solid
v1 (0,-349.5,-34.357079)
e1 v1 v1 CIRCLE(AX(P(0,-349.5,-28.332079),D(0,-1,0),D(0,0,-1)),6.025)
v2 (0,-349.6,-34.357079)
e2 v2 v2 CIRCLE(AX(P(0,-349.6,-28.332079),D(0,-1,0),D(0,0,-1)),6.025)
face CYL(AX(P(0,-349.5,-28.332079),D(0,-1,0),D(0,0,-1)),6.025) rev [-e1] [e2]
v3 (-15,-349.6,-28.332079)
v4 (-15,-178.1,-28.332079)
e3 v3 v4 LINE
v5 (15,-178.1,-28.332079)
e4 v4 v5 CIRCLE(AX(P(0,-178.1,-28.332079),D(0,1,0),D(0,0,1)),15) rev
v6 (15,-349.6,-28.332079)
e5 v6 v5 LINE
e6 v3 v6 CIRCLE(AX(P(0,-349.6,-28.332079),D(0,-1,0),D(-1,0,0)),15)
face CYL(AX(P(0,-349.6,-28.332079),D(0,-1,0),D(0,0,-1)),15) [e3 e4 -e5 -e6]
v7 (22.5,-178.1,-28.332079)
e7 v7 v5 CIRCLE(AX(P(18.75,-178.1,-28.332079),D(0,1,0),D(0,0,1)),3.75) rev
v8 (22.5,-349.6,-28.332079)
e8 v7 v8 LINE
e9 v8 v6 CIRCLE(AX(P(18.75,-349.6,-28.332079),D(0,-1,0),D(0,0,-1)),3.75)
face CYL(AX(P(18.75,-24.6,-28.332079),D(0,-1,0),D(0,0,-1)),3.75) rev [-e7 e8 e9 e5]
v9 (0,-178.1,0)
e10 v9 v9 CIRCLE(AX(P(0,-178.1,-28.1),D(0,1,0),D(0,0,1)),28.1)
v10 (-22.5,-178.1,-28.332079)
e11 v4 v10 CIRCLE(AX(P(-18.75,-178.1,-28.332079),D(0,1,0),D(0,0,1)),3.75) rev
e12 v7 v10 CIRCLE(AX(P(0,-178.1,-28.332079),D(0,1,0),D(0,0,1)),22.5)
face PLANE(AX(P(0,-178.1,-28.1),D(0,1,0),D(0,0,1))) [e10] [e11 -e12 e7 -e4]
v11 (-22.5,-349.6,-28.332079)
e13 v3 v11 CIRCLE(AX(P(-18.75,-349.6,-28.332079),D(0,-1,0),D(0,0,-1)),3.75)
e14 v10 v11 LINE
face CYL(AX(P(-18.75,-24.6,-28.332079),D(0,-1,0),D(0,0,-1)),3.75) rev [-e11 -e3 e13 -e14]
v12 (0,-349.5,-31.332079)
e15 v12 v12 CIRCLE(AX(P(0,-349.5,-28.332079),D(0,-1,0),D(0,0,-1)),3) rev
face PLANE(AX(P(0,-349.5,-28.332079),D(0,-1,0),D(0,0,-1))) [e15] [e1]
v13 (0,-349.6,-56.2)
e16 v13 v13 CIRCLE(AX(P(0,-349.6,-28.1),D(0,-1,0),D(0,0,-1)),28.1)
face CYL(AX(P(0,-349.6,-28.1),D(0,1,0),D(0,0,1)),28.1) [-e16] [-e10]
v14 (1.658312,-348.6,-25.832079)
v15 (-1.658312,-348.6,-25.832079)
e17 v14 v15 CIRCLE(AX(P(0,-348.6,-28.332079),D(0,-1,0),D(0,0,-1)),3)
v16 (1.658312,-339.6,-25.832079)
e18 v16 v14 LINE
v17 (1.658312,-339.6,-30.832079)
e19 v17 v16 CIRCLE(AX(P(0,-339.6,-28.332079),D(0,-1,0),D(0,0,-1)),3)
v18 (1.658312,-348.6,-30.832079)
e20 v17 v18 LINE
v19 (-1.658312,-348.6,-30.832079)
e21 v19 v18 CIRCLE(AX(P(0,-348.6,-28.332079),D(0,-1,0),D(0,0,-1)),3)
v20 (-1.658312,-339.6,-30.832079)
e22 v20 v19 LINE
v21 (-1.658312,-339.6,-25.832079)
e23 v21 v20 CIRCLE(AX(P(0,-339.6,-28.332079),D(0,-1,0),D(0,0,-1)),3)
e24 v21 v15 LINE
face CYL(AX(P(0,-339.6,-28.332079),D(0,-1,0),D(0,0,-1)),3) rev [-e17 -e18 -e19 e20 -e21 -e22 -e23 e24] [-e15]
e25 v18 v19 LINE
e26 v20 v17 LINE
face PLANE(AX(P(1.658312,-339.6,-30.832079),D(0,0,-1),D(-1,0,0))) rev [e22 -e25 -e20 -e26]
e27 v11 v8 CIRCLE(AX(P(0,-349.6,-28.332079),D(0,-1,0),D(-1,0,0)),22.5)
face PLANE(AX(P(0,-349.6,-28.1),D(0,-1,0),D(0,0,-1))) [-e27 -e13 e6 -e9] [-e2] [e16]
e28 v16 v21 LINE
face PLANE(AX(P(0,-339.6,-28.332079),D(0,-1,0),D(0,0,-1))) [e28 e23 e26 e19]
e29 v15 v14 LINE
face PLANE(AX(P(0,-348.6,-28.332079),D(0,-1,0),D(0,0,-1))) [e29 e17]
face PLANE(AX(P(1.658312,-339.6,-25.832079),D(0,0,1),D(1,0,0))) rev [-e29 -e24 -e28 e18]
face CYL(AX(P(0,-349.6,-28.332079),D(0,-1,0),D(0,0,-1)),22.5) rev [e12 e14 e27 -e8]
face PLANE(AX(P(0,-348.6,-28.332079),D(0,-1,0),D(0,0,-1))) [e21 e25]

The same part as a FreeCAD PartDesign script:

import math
import FreeCAD as App
import Part
import Sketcher
from FreeCAD import Vector
Q = App.Units.Quantity


def add_polygon(sketch, points):
    """Adds a closed chain of lines whose ends are joined by coincident constraints."""
    first, n = sketch.GeometryCount, len(points)
    for a, b in zip(points, points[1:] + points[:1]):
        sketch.addGeometry(Part.LineSegment(App.Vector(*a, 0), App.Vector(*b, 0)), False)
    for i in range(n):
        sketch.addConstraint(Sketcher.Constraint("Coincident", first + i, 2, first + (i + 1) % n, 1))

doc = App.newDocument("Part")
params = doc.addObject("Spreadsheet::Sheet", "Params")
for row, (alias, value) in enumerate([
    ("sketch1_diameter", "56.2 mm"),
    ("pad1_length", "61.3 mm"),
    ("sketch2_diameter", "37.2 mm"),
    ("pocket1_length", "58.8 mm"),
    ("sketch3_width", "56.2 mm"),
    ("pad2_length", "56.2 mm"),
    ("sketch4_diameter", "32.2 mm"),
    ("pocket2_length", "5 mm"),
    ("pocket3_length", "53.7 mm"),
    ("sketch6_diameter", "56.2 mm"),
    ("pad3_length", "321.5 mm"),
    ("sketch7_radius", "3 mm"),
    ("pocket4_length", "10 mm"),
    ("sketch8_diameter", "6 mm"),
    ("pocket5_length", "1 mm"),
    ("sketch9_diameter", "12.05 mm"),
    ("pocket6_length", "0.1 mm"),
    ("sketch10_width", "7.5 mm"),
    ("sketch10_height", "329.6 mm"),
    ("sketch11_radius", "15 mm"),
    ("sketch12_diameter", "7.5 mm"),
    ("pocket7_length", "100 mm"),
    ("sketch13_diameter", "7.5 mm"),
    ("pocket8_length", "325 mm"),
    ("sketch14_width", "56.2 mm"),
    ("pocket9_length", "200 mm"),
    ("sketch15_diameter", "56.2 mm"),
    ("pocket10_length", "150 mm"),
], start=1):
    params.set(f"A{row}", alias)
    params.set(f"B{row}", "=" + value)
    params.setAlias(f"B{row}", alias)

body = doc.addObject("PartDesign::Body", "Body")

# Sketch on XY plane
sketch1 = body.newObject("Sketcher::SketchObject", "Sketch")
sketch1.AttachmentSupport = (doc.getObject("XY_Plane"), [""])
sketch1.MapMode = "FlatFace"
sketch1.addGeometry(Part.Circle(Vector(0, 0, 0), Vector(0, 0, 1), 28), False)
sketch1.addConstraint([
    Sketcher.Constraint("Coincident", 0, 3, -1, 1),
    Sketcher.Constraint("Diameter", 0, Q("56.2 mm")),
])
sketch1.setExpression("Constraints[1]", "Params.sketch1_diameter")
pad1 = body.newObject("PartDesign::Pad", "Pad")
pad1.Profile = sketch1
pad1.setExpression("Length", "Params.pad1_length")

# Sketch on XY plane
sketch2 = body.newObject("Sketcher::SketchObject", "Sketch001")
sketch2.AttachmentSupport = (doc.getObject("XY_Plane"), [""])
sketch2.MapMode = "FlatFace"
sketch2.AttachmentOffset = App.Placement(Vector(0, 0, 61.3), App.Rotation())
sketch2.addGeometry(Part.Circle(Vector(0, -7, 0), Vector(0, 0, 1), 19), False)
sketch2.addConstraint([
    Sketcher.Constraint("PointOnObject", 0, 3, -2),
    Sketcher.Constraint("Diameter", 0, Q("37.2 mm")),
    Sketcher.Constraint("DistanceY", 0, 3, -1, 1, Q("7 mm")),
])
sketch2.setExpression("Constraints[1]", "Params.sketch2_diameter")
pocket1 = body.newObject("PartDesign::Pocket", "Pocket")
pocket1.Profile = sketch2
pocket1.setExpression("Length", "Params.pocket1_length")

# Sketch on XY plane
sketch3 = body.newObject("Sketcher::SketchObject", "Sketch002")
sketch3.AttachmentSupport = (doc.getObject("XY_Plane"), [""])
sketch3.MapMode = "FlatFace"
add_polygon(sketch3, [(28, 28), (28, -28), (-28, -28), (-28, 28)])  # lines 0-3
sketch3.addConstraint([
    Sketcher.Constraint("Vertical", 0),
    Sketcher.Constraint("Horizontal", 1),
    Sketcher.Constraint("Vertical", 2),
    Sketcher.Constraint("Horizontal", 3),
    Sketcher.Constraint("Symmetric", 0, 2, 2, 2, -1, 1),
    Sketcher.Constraint("Equal", 3, 0),
    Sketcher.Constraint("DistanceX", 1, 2, 1, 1, Q("56.2 mm")),
])
sketch3.setExpression("Constraints[10]", "Params.sketch3_width")
pad2 = body.newObject("PartDesign::Pad", "Pad001")
pad2.Profile = sketch3
pad2.setExpression("Length", "Params.pad2_length")
pad2.Reversed = True

# Sketch on XY plane
sketch4 = body.newObject("Sketcher::SketchObject", "Sketch003")
sketch4.AttachmentSupport = (doc.getObject("XY_Plane"), [""])
sketch4.MapMode = "FlatFace"
sketch4.AttachmentOffset = App.Placement(Vector(0, 0, 2.5), App.Rotation())
sketch4.addGeometry(Part.Circle(Vector(0, -7, 0), Vector(0, 0, 1), 16), False)
sketch4.addConstraint([
    Sketcher.Constraint("PointOnObject", 0, 3, -2),
    Sketcher.Constraint("Diameter", 0, Q("32.2 mm")),
    Sketcher.Constraint("DistanceY", 0, 3, -1, 1, Q("7 mm")),
])
sketch4.setExpression("Constraints[1]", "Params.sketch4_diameter")
pocket2 = body.newObject("PartDesign::Pocket", "Pocket001")
pocket2.Profile = sketch4
pocket2.setExpression("Length", "Params.pocket2_length")

# Sketch on XY plane
sketch5 = body.newObject("Sketcher::SketchObject", "Sketch004")
sketch5.AttachmentSupport = (doc.getObject("XY_Plane"), [""])
sketch5.MapMode = "FlatFace"
sketch5.AttachmentOffset = App.Placement(Vector(0, 0, -56.2), App.Rotation())
add_polygon(sketch5, [(25, 25), (25, -25), (-25, -25), (-25, 25)])  # lines 0-3
sketch5.addConstraint([
    Sketcher.Constraint("Vertical", 0),
    Sketcher.Constraint("Horizontal", 1),
    Sketcher.Constraint("Vertical", 2),
    Sketcher.Constraint("Horizontal", 3),
    Sketcher.Constraint("Symmetric", 0, 2, 2, 2, -1, 1),
    Sketcher.Constraint("DistanceX", 1, 2, 1, 1, Q("49.797391 mm")),
    Sketcher.Constraint("DistanceY", 0, 2, 0, 1, Q("49.779255 mm")),
])
pocket3 = body.newObject("PartDesign::Pocket", "Pocket002")
pocket3.Profile = sketch5
pocket3.setExpression("Length", "Params.pocket3_length")
pocket3.Reversed = True

# Sketch on XZ plane
sketch6 = body.newObject("Sketcher::SketchObject", "Sketch005")
sketch6.AttachmentSupport = (doc.getObject("XZ_Plane"), [""])
sketch6.MapMode = "FlatFace"
sketch6.AttachmentOffset = App.Placement(Vector(0, 0, 28.1), App.Rotation())
sketch6.addGeometry(Part.Circle(Vector(0, -28, 0), Vector(0, 0, 1), 28), False)
sketch6.addConstraint([
    Sketcher.Constraint("PointOnObject", 0, 3, -2),
    Sketcher.Constraint("Diameter", 0, Q("56.2 mm")),
    Sketcher.Constraint("DistanceY", 0, 3, -1, 1, Q("28.1 mm")),
])
sketch6.setExpression("Constraints[1]", "Params.sketch6_diameter")
pad3 = body.newObject("PartDesign::Pad", "Pad002")
pad3.Profile = sketch6
pad3.setExpression("Length", "Params.pad3_length")

# Sketch on XZ plane
sketch7 = body.newObject("Sketcher::SketchObject", "Sketch006")
sketch7.AttachmentSupport = (doc.getObject("XZ_Plane"), [""])
sketch7.MapMode = "FlatFace"
sketch7.AttachmentOffset = App.Placement(Vector(0, 0, 349.6), App.Rotation())
sketch7.addGeometry([
    Part.LineSegment(Vector(1.7, -25.8, 0), Vector(-1.7, -25.8, 0)),
    Part.ArcOfCircle(Part.Circle(Vector(0, -28.3, 0), Vector(0, 0, 1), 3), math.radians(124), math.radians(236)),
    Part.LineSegment(Vector(-1.7, -30.8, 0), Vector(1.7, -30.8, 0)),
    Part.ArcOfCircle(Part.Circle(Vector(0, -28.3, 0), Vector(0, 0, 1), 3), math.radians(-56), math.radians(56)),
], False)
sketch7.addConstraint([
    Sketcher.Constraint("Coincident", 0, 2, 1, 1),
    Sketcher.Constraint("Coincident", 1, 2, 2, 1),
    Sketcher.Constraint("Coincident", 2, 2, 3, 1),
    Sketcher.Constraint("Coincident", 3, 2, 0, 1),
    Sketcher.Constraint("Horizontal", 0),
    Sketcher.Constraint("Horizontal", 2),
    Sketcher.Constraint("Coincident", 3, 3, 1, 3),
    Sketcher.Constraint("Equal", 1, 3),
    Sketcher.Constraint("PointOnObject", 1, 3, -2),
    Sketcher.Constraint("Vertical", 0, 2, 1, 2),
    Sketcher.Constraint("Radius", 1, Q("3 mm")),
    Sketcher.Constraint("DistanceY", 1, 2, 0, 2, Q("5 mm")),
    Sketcher.Constraint("DistanceY", 1, 3, -1, 1, Q("28.332079 mm")),
])
sketch7.setExpression("Constraints[10]", "Params.sketch7_radius")
pocket4 = body.newObject("PartDesign::Pocket", "Pocket003")
pocket4.Profile = sketch7
pocket4.setExpression("Length", "Params.pocket4_length")

# Sketch on XZ plane
sketch8 = body.newObject("Sketcher::SketchObject", "Sketch007")
sketch8.AttachmentSupport = (doc.getObject("XZ_Plane"), [""])
sketch8.MapMode = "FlatFace"
sketch8.AttachmentOffset = App.Placement(Vector(0, 0, 349.6), App.Rotation())
sketch8.addGeometry(Part.Circle(Vector(0, -28.3, 0), Vector(0, 0, 1), 3), False)
sketch8.addConstraint([
    Sketcher.Constraint("PointOnObject", 0, 3, -2),
    Sketcher.Constraint("Diameter", 0, Q("6 mm")),
    Sketcher.Constraint("DistanceY", 0, 3, -1, 1, Q("28.332079 mm")),
])
sketch8.setExpression("Constraints[1]", "Params.sketch8_diameter")
pocket5 = body.newObject("PartDesign::Pocket", "Pocket004")
pocket5.Profile = sketch8
pocket5.setExpression("Length", "Params.pocket5_length")

# Sketch on XZ plane
sketch9 = body.newObject("Sketcher::SketchObject", "Sketch008")
sketch9.AttachmentSupport = (doc.getObject("XZ_Plane"), [""])
sketch9.MapMode = "FlatFace"
sketch9.AttachmentOffset = App.Placement(Vector(0, 0, 349.6), App.Rotation())
sketch9.addGeometry(Part.Circle(Vector(0, -28, 0), Vector(0, 0, 1), 6), False)
sketch9.addConstraint([
    Sketcher.Constraint("PointOnObject", 0, 3, -2),
    Sketcher.Constraint("Diameter", 0, Q("12.05 mm")),
    Sketcher.Constraint("DistanceY", 0, 3, -1, 1, Q("28.332079 mm")),
])
sketch9.setExpression("Constraints[1]", "Params.sketch9_diameter")
pocket6 = body.newObject("PartDesign::Pocket", "Pocket005")
pocket6.Profile = sketch9
pocket6.setExpression("Length", "Params.pocket6_length")

# Sketch on XY plane
sketch10 = body.newObject("Sketcher::SketchObject", "Sketch009")
sketch10.AttachmentSupport = (doc.getObject("XY_Plane"), [""])
sketch10.MapMode = "FlatFace"
sketch10.AttachmentOffset = App.Placement(Vector(0, 0, -28.332079), App.Rotation())
add_polygon(sketch10, [(-23, -350), (-15, -350), (-15, -20), (-23, -20)])  # lines 0-3
sketch10.addConstraint([
    Sketcher.Constraint("Horizontal", 0),
    Sketcher.Constraint("Vertical", 1),
    Sketcher.Constraint("Horizontal", 2),
    Sketcher.Constraint("Vertical", 3),
    Sketcher.Constraint("DistanceX", 0, 1, 0, 2, Q("7.5 mm")),
    Sketcher.Constraint("DistanceY", 1, 1, 1, 2, Q("329.6 mm")),
    Sketcher.Constraint("DistanceX", 0, 2, -1, 1, Q("15 mm")),
    Sketcher.Constraint("DistanceY", 1, 2, -1, 1, Q("20 mm")),
])
sketch10.setExpression("Constraints[8]", "Params.sketch10_width")
sketch10.setExpression("Constraints[9]", "Params.sketch10_height")

# Sketch on XZ plane
sketch11 = body.newObject("Sketcher::SketchObject", "Sketch010")
sketch11.AttachmentSupport = (doc.getObject("XZ_Plane"), [""])
sketch11.MapMode = "FlatFace"
sketch11.AttachmentOffset = App.Placement(Vector(0, 0, 349.6), App.Rotation())
sketch11.addGeometry(Part.ArcOfCircle(Part.Circle(Vector(0, -28, 0), Vector(0, 0, 1), 15), math.radians(180), math.radians(360)), False)
sketch11.addConstraint([
    Sketcher.Constraint("Symmetric", 0, 1, 0, 2, -2),
    Sketcher.Constraint("Radius", 0, Q("15 mm")),
    Sketcher.Constraint("DistanceY", 0, 3, -1, 1, Q("28.332079 mm")),
    Sketcher.Constraint("DistanceY", 0, 1, -1, 1, Q("28.332079 mm")),
])
sketch11.setExpression("Constraints[1]", "Params.sketch11_radius")
doc.recompute()

subtractivepipe = body.newObject("PartDesign::SubtractivePipe", "SubtractivePipe")
subtractivepipe.Profile = sketch10
subtractivepipe.Spine = (sketch11, ["Edge1"])

# Sketch on XY plane
sketch12 = body.newObject("Sketcher::SketchObject", "Sketch011")
sketch12.AttachmentSupport = (doc.getObject("XY_Plane"), [""])
sketch12.MapMode = "FlatFace"
sketch12.AttachmentOffset = App.Placement(Vector(0, 0, 61.3), App.Rotation())
sketch12.addGeometry(Part.Circle(Vector(0, 18.8, 0), Vector(0, 0, 1), 3.8), False)
sketch12.addConstraint([
    Sketcher.Constraint("PointOnObject", 0, 3, -2),
    Sketcher.Constraint("Diameter", 0, Q("7.5 mm")),
    Sketcher.Constraint("DistanceY", -1, 1, 0, 3, Q("18.75 mm")),
])
sketch12.setExpression("Constraints[1]", "Params.sketch12_diameter")
pocket7 = body.newObject("PartDesign::Pocket", "Pocket006")
pocket7.Profile = sketch12
pocket7.setExpression("Length", "Params.pocket7_length")

# Sketch on XZ plane
sketch13 = body.newObject("Sketcher::SketchObject", "Sketch012")
sketch13.AttachmentSupport = (doc.getObject("XZ_Plane"), [""])
sketch13.MapMode = "FlatFace"
sketch13.AttachmentOffset = App.Placement(Vector(0, 0, 349.6), App.Rotation())
sketch13.addGeometry([
    Part.Circle(Vector(18.8, -28.3, 0), Vector(0, 0, 1), 3.8),
    Part.Circle(Vector(-18.8, -28.3, 0), Vector(0, 0, 1), 3.8),
], False)
sketch13.addConstraint([
    Sketcher.Constraint("Equal", 0, 1),
    Sketcher.Constraint("Symmetric", 0, 3, 1, 3, -2),
    Sketcher.Constraint("Diameter", 0, Q("7.5 mm")),
    Sketcher.Constraint("DistanceX", 1, 3, 0, 3, Q("37.5 mm")),
    Sketcher.Constraint("DistanceY", 0, 3, -1, 1, Q("28.332079 mm")),
])
sketch13.setExpression("Constraints[2]", "Params.sketch13_diameter")
pocket8 = body.newObject("PartDesign::Pocket", "Pocket007")
pocket8.Profile = sketch13
pocket8.setExpression("Length", "Params.pocket8_length")

# Sketch on XY plane
sketch14 = body.newObject("Sketcher::SketchObject", "Sketch013")
sketch14.AttachmentSupport = (doc.getObject("XY_Plane"), [""])
sketch14.MapMode = "FlatFace"
sketch14.AttachmentOffset = App.Placement(Vector(0, 0, -56.2), App.Rotation())
add_polygon(sketch14, [(28, 28), (28, -28), (-28, -28), (-28, 28)])  # lines 0-3
sketch14.addConstraint([
    Sketcher.Constraint("Vertical", 0),
    Sketcher.Constraint("Horizontal", 1),
    Sketcher.Constraint("Vertical", 2),
    Sketcher.Constraint("Horizontal", 3),
    Sketcher.Constraint("Symmetric", 0, 2, 2, 2, -1, 1),
    Sketcher.Constraint("Equal", 3, 0),
    Sketcher.Constraint("DistanceX", 1, 2, 1, 1, Q("56.2 mm")),
])
sketch14.setExpression("Constraints[10]", "Params.sketch14_width")
pocket9 = body.newObject("PartDesign::Pocket", "Pocket008")
pocket9.Profile = sketch14
pocket9.setExpression("Length", "Params.pocket9_length")
pocket9.Reversed = True

# Sketch on XZ plane
sketch15 = body.newObject("Sketcher::SketchObject", "Sketch014")
sketch15.AttachmentSupport = (doc.getObject("XZ_Plane"), [""])
sketch15.MapMode = "FlatFace"
sketch15.AttachmentOffset = App.Placement(Vector(0, 0, 28.1), App.Rotation())
sketch15.addGeometry(Part.Circle(Vector(0, -28, 0), Vector(0, 0, 1), 28), False)
sketch15.addConstraint([
    Sketcher.Constraint("PointOnObject", 0, 3, -2),
    Sketcher.Constraint("Diameter", 0, Q("56.2 mm")),
    Sketcher.Constraint("DistanceY", 0, 3, -1, 1, Q("28.1 mm")),
])
sketch15.setExpression("Constraints[1]", "Params.sketch15_diameter")
pocket10 = body.newObject("PartDesign::Pocket", "Pocket009")
pocket10.Profile = sketch15
pocket10.setExpression("Length", "Params.pocket10_length")
pocket10.Reversed = True

doc.recompute()
